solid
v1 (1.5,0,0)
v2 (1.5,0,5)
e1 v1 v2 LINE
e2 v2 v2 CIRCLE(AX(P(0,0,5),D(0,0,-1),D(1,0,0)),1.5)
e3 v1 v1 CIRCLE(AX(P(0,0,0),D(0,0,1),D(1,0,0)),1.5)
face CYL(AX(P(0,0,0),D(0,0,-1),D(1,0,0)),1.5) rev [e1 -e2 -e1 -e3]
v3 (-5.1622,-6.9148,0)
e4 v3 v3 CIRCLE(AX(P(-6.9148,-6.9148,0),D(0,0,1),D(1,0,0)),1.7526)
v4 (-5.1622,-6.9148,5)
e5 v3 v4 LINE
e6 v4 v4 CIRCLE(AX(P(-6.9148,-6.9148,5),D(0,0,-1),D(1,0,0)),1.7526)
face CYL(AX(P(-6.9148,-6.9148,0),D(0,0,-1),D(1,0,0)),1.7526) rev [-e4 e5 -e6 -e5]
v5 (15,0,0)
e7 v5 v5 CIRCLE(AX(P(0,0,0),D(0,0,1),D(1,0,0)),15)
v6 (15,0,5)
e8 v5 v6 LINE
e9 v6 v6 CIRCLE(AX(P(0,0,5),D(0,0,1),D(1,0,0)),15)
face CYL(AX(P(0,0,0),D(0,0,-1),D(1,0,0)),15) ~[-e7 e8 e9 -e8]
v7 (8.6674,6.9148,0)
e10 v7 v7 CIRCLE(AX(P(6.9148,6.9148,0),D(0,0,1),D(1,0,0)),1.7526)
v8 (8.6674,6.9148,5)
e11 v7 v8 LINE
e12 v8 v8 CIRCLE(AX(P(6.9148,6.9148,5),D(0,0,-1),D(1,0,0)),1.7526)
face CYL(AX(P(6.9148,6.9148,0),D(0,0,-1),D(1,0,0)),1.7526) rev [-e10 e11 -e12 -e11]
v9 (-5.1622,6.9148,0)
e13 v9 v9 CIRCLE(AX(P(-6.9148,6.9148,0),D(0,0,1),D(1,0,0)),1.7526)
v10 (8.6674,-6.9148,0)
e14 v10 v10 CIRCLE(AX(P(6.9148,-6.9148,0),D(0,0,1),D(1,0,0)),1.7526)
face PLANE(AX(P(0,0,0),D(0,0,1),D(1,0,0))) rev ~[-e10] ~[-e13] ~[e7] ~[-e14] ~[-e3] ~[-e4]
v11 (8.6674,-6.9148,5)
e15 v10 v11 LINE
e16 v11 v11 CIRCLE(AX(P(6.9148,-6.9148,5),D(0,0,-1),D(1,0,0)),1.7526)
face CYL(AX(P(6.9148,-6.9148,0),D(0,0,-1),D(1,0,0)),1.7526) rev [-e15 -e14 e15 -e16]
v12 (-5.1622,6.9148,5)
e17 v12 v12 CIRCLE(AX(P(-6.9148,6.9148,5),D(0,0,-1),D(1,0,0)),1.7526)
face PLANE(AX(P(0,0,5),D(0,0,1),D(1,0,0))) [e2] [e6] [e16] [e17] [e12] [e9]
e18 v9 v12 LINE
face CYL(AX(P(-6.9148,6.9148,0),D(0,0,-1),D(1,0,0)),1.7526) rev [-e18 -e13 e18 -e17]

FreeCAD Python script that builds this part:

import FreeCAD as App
import Part
import Sketcher
from FreeCAD import Vector
Q = App.Units.Quantity

doc = App.newDocument("Part")
params = doc.addObject("Spreadsheet::Sheet", "Params")
for row, (alias, value) in enumerate([
    ("sketch1_diameter", "30 mm"),
    ("pad1_length", "5 mm"),
    ("sketch2_diameter", "3 mm"),
], start=1):
    params.set(f"A{row}", alias)
    params.set(f"B{row}", "=" + value)
    params.setAlias(f"B{row}", alias)

body = doc.addObject("PartDesign::Body", "Body")

# Sketch on XY plane
sketch1 = body.newObject("Sketcher::SketchObject", "Sketch")
sketch1.AttachmentSupport = (doc.getObject("XY_Plane"), [""])
sketch1.MapMode = "FlatFace"
sketch1.addGeometry(Part.Circle(Vector(0, 0, 0), Vector(0, 0, 1), 15), False)
sketch1.addConstraint(Sketcher.Constraint("Coincident", 0, 3, -1, 1))
sketch1.addConstraint(Sketcher.Constraint("Diameter", 0, Q("30 mm")))
sketch1.setExpression("Constraints[1]", "Params.sketch1_diameter")
pad1 = body.newObject("PartDesign::Pad", "Pad")
pad1.Profile = sketch1
pad1.setExpression("Length", "Params.pad1_length")

# Sketch on XY plane
sketch2 = body.newObject("Sketcher::SketchObject", "Sketch001")
sketch2.AttachmentSupport = (doc.getObject("XY_Plane"), [""])
sketch2.MapMode = "FlatFace"
sketch2.addGeometry(Part.Circle(Vector(0, 0, 0), Vector(0, 0, 1), 1.5), False)
sketch2.addGeometry(Part.Circle(Vector(-6.9148, 6.9148, 0), Vector(0, 0, 1), 1.7526), False)
sketch2.addGeometry(Part.Circle(Vector(-6.9148, -6.9148, 0), Vector(0, 0, 1), 1.7526), False)
sketch2.addGeometry(Part.Circle(Vector(6.9148, -6.9148, 0), Vector(0, 0, 1), 1.7526), False)
sketch2.addGeometry(Part.Circle(Vector(6.9148, 6.9148, 0), Vector(0, 0, 1), 1.7526), False)
sketch2.addConstraint(Sketcher.Constraint("Coincident", 0, 3, -1, 1))
sketch2.addConstraint(Sketcher.Constraint("Equal", 1, 2))
sketch2.addConstraint(Sketcher.Constraint("Equal", 2, 3))
sketch2.addConstraint(Sketcher.Constraint("Equal", 3, 4))
sketch2.addConstraint(Sketcher.Constraint("Symmetric", 1, 3, 3, 3, -1, 1))
sketch2.addConstraint(Sketcher.Constraint("Symmetric", 2, 3, 4, 3, -1, 1))
sketch2.addConstraint(Sketcher.Constraint("Symmetric", 2, 3, 3, 3, -2))
sketch2.addConstraint(Sketcher.Constraint("Diameter", 0, Q("3 mm")))
sketch2.addConstraint(Sketcher.Constraint("Diameter", 1, Q("3.5052 mm")))
sketch2.addConstraint(Sketcher.Constraint("DistanceX", 1, 3, -1, 1, Q("6.9148 mm")))
sketch2.addConstraint(Sketcher.Constraint("DistanceY", -1, 1, 1, 3, Q("6.9148 mm")))
sketch2.setExpression("Constraints[7]", "Params.sketch2_diameter")
pocket1 = body.newObject("PartDesign::Pocket", "Pocket")
pocket1.Profile = sketch2
pocket1.Type = "ThroughAll"
pocket1.Reversed = True

doc.recompute()
